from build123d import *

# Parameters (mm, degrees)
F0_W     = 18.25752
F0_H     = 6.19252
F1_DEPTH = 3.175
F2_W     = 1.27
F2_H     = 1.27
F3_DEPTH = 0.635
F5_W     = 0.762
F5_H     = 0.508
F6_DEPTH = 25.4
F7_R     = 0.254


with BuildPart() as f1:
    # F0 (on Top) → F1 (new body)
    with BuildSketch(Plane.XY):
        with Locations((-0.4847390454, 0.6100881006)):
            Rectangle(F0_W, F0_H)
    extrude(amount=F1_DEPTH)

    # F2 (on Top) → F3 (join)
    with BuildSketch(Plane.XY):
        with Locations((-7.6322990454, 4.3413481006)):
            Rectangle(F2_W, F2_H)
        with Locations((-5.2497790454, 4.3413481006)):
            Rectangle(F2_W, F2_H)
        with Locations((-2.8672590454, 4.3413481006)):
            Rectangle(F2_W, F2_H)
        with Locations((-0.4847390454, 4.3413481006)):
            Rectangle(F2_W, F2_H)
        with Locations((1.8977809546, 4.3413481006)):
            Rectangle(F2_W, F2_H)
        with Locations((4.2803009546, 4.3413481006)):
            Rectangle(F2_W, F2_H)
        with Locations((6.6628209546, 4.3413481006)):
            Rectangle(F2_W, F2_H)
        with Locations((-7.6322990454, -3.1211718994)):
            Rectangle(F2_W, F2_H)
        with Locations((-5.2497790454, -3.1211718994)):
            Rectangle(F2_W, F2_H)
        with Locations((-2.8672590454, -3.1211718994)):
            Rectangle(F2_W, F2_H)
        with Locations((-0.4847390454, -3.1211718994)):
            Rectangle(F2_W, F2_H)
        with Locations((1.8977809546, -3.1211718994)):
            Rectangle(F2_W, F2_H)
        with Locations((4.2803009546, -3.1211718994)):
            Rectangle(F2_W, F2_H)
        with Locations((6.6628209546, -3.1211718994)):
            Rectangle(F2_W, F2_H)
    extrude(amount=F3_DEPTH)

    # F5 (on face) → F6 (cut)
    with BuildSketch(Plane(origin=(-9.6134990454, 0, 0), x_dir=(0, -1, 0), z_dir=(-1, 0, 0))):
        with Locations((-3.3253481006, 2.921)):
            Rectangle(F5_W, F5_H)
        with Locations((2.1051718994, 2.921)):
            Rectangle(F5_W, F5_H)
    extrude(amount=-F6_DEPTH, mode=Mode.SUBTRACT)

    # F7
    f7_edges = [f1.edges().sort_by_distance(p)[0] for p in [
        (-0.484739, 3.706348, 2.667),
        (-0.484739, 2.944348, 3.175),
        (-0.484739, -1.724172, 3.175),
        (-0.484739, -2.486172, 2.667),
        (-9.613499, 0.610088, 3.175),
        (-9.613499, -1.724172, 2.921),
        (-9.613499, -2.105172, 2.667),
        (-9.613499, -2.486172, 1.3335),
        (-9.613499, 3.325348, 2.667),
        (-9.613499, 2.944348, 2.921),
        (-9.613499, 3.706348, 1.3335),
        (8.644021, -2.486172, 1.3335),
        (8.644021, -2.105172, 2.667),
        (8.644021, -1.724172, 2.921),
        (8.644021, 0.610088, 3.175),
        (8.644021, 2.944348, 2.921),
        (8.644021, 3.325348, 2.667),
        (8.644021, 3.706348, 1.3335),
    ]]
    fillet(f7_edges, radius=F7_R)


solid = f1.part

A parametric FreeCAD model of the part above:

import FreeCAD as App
import Part
import Sketcher
from FreeCAD import Vector
Q = App.Units.Quantity


def edges_at(feature, points):
    """Names of the edges that pass closest to the given points."""
    edges = feature.Shape.Edges
    near = lambda p: min(range(len(edges)), key=lambda i: edges[i].distToShape(Part.Vertex(*p))[0])
    return sorted({f"Edge{near(p) + 1}" for p in points})

doc = App.newDocument("Part")
body = doc.addObject("PartDesign::Body", "Body")

sketch1 = body.newObject("Sketcher::SketchObject", "Sketch")
sketch1.AttachmentSupport = (doc.getObject("XY_Plane"), [""])
sketch1.MapMode = "FlatFace"
sketch1.addGeometry(Part.LineSegment(Vector(-10, 4, 0), Vector(-10, -2, 0)), False)
sketch1.addGeometry(Part.LineSegment(Vector(-10, -2, 0), Vector(9, -2, 0)), False)
sketch1.addGeometry(Part.LineSegment(Vector(9, -2, 0), Vector(9, 4, 0)), False)
sketch1.addGeometry(Part.LineSegment(Vector(9, 4, 0), Vector(-10, 4, 0)), False)
sketch1.addConstraint(Sketcher.Constraint("Coincident", 0, 2, 1, 1))
sketch1.addConstraint(Sketcher.Constraint("Coincident", 1, 2, 2, 1))
sketch1.addConstraint(Sketcher.Constraint("Coincident", 2, 2, 3, 1))
sketch1.addConstraint(Sketcher.Constraint("Coincident", 3, 2, 0, 1))
sketch1.addConstraint(Sketcher.Constraint("Vertical", 0))
sketch1.addConstraint(Sketcher.Constraint("Horizontal", 1))
sketch1.addConstraint(Sketcher.Constraint("Vertical", 2))
sketch1.addConstraint(Sketcher.Constraint("Horizontal", 3))
sketch1.addConstraint(Sketcher.Constraint("DistanceX", 1, 1, 1, 2, Q("0.7188 in")))
sketch1.addConstraint(Sketcher.Constraint("DistanceY", 0, 2, 0, 1, Q("0.2438 in")))
sketch1.addConstraint(Sketcher.Constraint("DistanceX", 0, 2, -1, 1, 9.613499))
sketch1.addConstraint(Sketcher.Constraint("DistanceY", 0, 2, -1, 1, 2.486172))
pad1 = body.newObject("PartDesign::Pad", "Pad")
pad1.Profile = sketch1
pad1.Length = Q("0.125 in")

sketch2 = body.newObject("Sketcher::SketchObject", "Sketch001")
sketch2.AttachmentSupport = (doc.getObject("XY_Plane"), [""])
sketch2.MapMode = "FlatFace"
sketch2.addGeometry(Part.LineSegment(Vector(-8.3, 5, 0), Vector(-8.3, 3.7, 0)), False)
sketch2.addGeometry(Part.LineSegment(Vector(-8.3, 3.7, 0), Vector(-7, 3.7, 0)), False)
sketch2.addGeometry(Part.LineSegment(Vector(-7, 3.7, 0), Vector(-7, 5, 0)), False)
sketch2.addGeometry(Part.LineSegment(Vector(-7, 5, 0), Vector(-8.3, 5, 0)), False)
sketch2.addGeometry(Part.LineSegment(Vector(-5.9, 5, 0), Vector(-5.9, 3.7, 0)), False)
sketch2.addGeometry(Part.LineSegment(Vector(-5.9, 3.7, 0), Vector(-4.6, 3.7, 0)), False)
sketch2.addGeometry(Part.LineSegment(Vector(-4.6, 3.7, 0), Vector(-4.6, 5, 0)), False)
sketch2.addGeometry(Part.LineSegment(Vector(-4.6, 5, 0), Vector(-5.9, 5, 0)), False)
sketch2.addGeometry(Part.LineSegment(Vector(-3.5, 5, 0), Vector(-3.5, 3.7, 0)), False)
sketch2.addGeometry(Part.LineSegment(Vector(-3.5, 3.7, 0), Vector(-2.2, 3.7, 0)), False)
sketch2.addGeometry(Part.LineSegment(Vector(-2.2, 3.7, 0), Vector(-2.2, 5, 0)), False)
sketch2.addGeometry(Part.LineSegment(Vector(-2.2, 5, 0), Vector(-3.5, 5, 0)), False)
sketch2.addGeometry(Part.LineSegment(Vector(-1.1, 5, 0), Vector(-1.1, 3.7, 0)), False)
sketch2.addGeometry(Part.LineSegment(Vector(-1.1, 3.7, 0), Vector(0.2, 3.7, 0)), False)
sketch2.addGeometry(Part.LineSegment(Vector(0.2, 3.7, 0), Vector(0.2, 5, 0)), False)
sketch2.addGeometry(Part.LineSegment(Vector(0.2, 5, 0), Vector(-1.1, 5, 0)), False)
sketch2.addGeometry(Part.LineSegment(Vector(1.3, 5, 0), Vector(1.3, 3.7, 0)), False)
sketch2.addGeometry(Part.LineSegment(Vector(1.3, 3.7, 0), Vector(2.5, 3.7, 0)), False)
sketch2.addGeometry(Part.LineSegment(Vector(2.5, 3.7, 0), Vector(2.5, 5, 0)), False)
sketch2.addGeometry(Part.LineSegment(Vector(2.5, 5, 0), Vector(1.3, 5, 0)), False)
sketch2.addGeometry(Part.LineSegment(Vector(3.6, 5, 0), Vector(3.6, 3.7, 0)), False)
sketch2.addGeometry(Part.LineSegment(Vector(3.6, 3.7, 0), Vector(4.9, 3.7, 0)), False)
sketch2.addGeometry(Part.LineSegment(Vector(4.9, 3.7, 0), Vector(4.9, 5, 0)), False)
sketch2.addGeometry(Part.LineSegment(Vector(4.9, 5, 0), Vector(3.6, 5, 0)), False)
sketch2.addGeometry(Part.LineSegment(Vector(6, 5, 0), Vector(6, 3.7, 0)), False)
sketch2.addGeometry(Part.LineSegment(Vector(6, 3.7, 0), Vector(7.3, 3.7, 0)), False)
sketch2.addGeometry(Part.LineSegment(Vector(7.3, 3.7, 0), Vector(7.3, 5, 0)), False)
sketch2.addGeometry(Part.LineSegment(Vector(7.3, 5, 0), Vector(6, 5, 0)), False)
sketch2.addGeometry(Part.LineSegment(Vector(-8.3, -2.5, 0), Vector(-8.3, -3.8, 0)), False)
sketch2.addGeometry(Part.LineSegment(Vector(-8.3, -3.8, 0), Vector(-7, -3.8, 0)), False)
sketch2.addGeometry(Part.LineSegment(Vector(-7, -3.8, 0), Vector(-7, -2.5, 0)), False)
sketch2.addGeometry(Part.LineSegment(Vector(-7, -2.5, 0), Vector(-8.3, -2.5, 0)), False)
sketch2.addGeometry(Part.LineSegment(Vector(-5.9, -2.5, 0), Vector(-5.9, -3.8, 0)), False)
sketch2.addGeometry(Part.LineSegment(Vector(-5.9, -3.8, 0), Vector(-4.6, -3.8, 0)), False)
sketch2.addGeometry(Part.LineSegment(Vector(-4.6, -3.8, 0), Vector(-4.6, -2.5, 0)), False)
sketch2.addGeometry(Part.LineSegment(Vector(-4.6, -2.5, 0), Vector(-5.9, -2.5, 0)), False)
sketch2.addGeometry(Part.LineSegment(Vector(-3.5, -2.5, 0), Vector(-3.5, -3.8, 0)), False)
sketch2.addGeometry(Part.LineSegment(Vector(-3.5, -3.8, 0), Vector(-2.2, -3.8, 0)), False)
sketch2.addGeometry(Part.LineSegment(Vector(-2.2, -3.8, 0), Vector(-2.2, -2.5, 0)), False)
sketch2.addGeometry(Part.LineSegment(Vector(-2.2, -2.5, 0), Vector(-3.5, -2.5, 0)), False)
sketch2.addGeometry(Part.LineSegment(Vector(-1.1, -2.5, 0), Vector(-1.1, -3.8, 0)), False)
sketch2.addGeometry(Part.LineSegment(Vector(-1.1, -3.8, 0), Vector(0.2, -3.8, 0)), False)
sketch2.addGeometry(Part.LineSegment(Vector(0.2, -3.8, 0), Vector(0.2, -2.5, 0)), False)
sketch2.addGeometry(Part.LineSegment(Vector(0.2, -2.5, 0), Vector(-1.1, -2.5, 0)), False)
sketch2.addGeometry(Part.LineSegment(Vector(1.3, -2.5, 0), Vector(1.3, -3.8, 0)), False)
sketch2.addGeometry(Part.LineSegment(Vector(1.3, -3.8, 0), Vector(2.5, -3.8, 0)), False)
sketch2.addGeometry(Part.LineSegment(Vector(2.5, -3.8, 0), Vector(2.5, -2.5, 0)), False)
sketch2.addGeometry(Part.LineSegment(Vector(2.5, -2.5, 0), Vector(1.3, -2.5, 0)), False)
sketch2.addGeometry(Part.LineSegment(Vector(3.6, -2.5, 0), Vector(3.6, -3.8, 0)), False)
sketch2.addGeometry(Part.LineSegment(Vector(3.6, -3.8, 0), Vector(4.9, -3.8, 0)), False)
sketch2.addGeometry(Part.LineSegment(Vector(4.9, -3.8, 0), Vector(4.9, -2.5, 0)), False)
sketch2.addGeometry(Part.LineSegment(Vector(4.9, -2.5, 0), Vector(3.6, -2.5, 0)), False)
sketch2.addGeometry(Part.LineSegment(Vector(6, -2.5, 0), Vector(6, -3.8, 0)), False)
sketch2.addGeometry(Part.LineSegment(Vector(6, -3.8, 0), Vector(7.3, -3.8, 0)), False)
sketch2.addGeometry(Part.LineSegment(Vector(7.3, -3.8, 0), Vector(7.3, -2.5, 0)), False)
sketch2.addGeometry(Part.LineSegment(Vector(7.3, -2.5, 0), Vector(6, -2.5, 0)), False)
sketch2.addConstraint(Sketcher.Constraint("Coincident", 0, 2, 1, 1))
sketch2.addConstraint(Sketcher.Constraint("Coincident", 1, 2, 2, 1))
sketch2.addConstraint(Sketcher.Constraint("Coincident", 2, 2, 3, 1))
sketch2.addConstraint(Sketcher.Constraint("Coincident", 3, 2, 0, 1))
sketch2.addConstraint(Sketcher.Constraint("Coincident", 4, 2, 5, 1))
sketch2.addConstraint(Sketcher.Constraint("Coincident", 5, 2, 6, 1))
sketch2.addConstraint(Sketcher.Constraint("Coincident", 6, 2, 7, 1))
sketch2.addConstraint(Sketcher.Constraint("Coincident", 7, 2, 4, 1))
sketch2.addConstraint(Sketcher.Constraint("Coincident", 8, 2, 9, 1))
sketch2.addConstraint(Sketcher.Constraint("Coincident", 9, 2, 10, 1))
sketch2.addConstraint(Sketcher.Constraint("Coincident", 10, 2, 11, 1))
sketch2.addConstraint(Sketcher.Constraint("Coincident", 11, 2, 8, 1))
sketch2.addConstraint(Sketcher.Constraint("Coincident", 12, 2, 13, 1))
sketch2.addConstraint(Sketcher.Constraint("Coincident", 13, 2, 14, 1))
sketch2.addConstraint(Sketcher.Constraint("Coincident", 14, 2, 15, 1))
sketch2.addConstraint(Sketcher.Constraint("Coincident", 15, 2, 12, 1))
sketch2.addConstraint(Sketcher.Constraint("Coincident", 16, 2, 17, 1))
sketch2.addConstraint(Sketcher.Constraint("Coincident", 17, 2, 18, 1))
sketch2.addConstraint(Sketcher.Constraint("Coincident", 18, 2, 19, 1))
sketch2.addConstraint(Sketcher.Constraint("Coincident", 19, 2, 16, 1))
sketch2.addConstraint(Sketcher.Constraint("Coincident", 20, 2, 21, 1))
sketch2.addConstraint(Sketcher.Constraint("Coincident", 21, 2, 22, 1))
sketch2.addConstraint(Sketcher.Constraint("Coincident", 22, 2, 23, 1))
sketch2.addConstraint(Sketcher.Constraint("Coincident", 23, 2, 20, 1))
sketch2.addConstraint(Sketcher.Constraint("Coincident", 24, 2, 25, 1))
sketch2.addConstraint(Sketcher.Constraint("Coincident", 25, 2, 26, 1))
sketch2.addConstraint(Sketcher.Constraint("Coincident", 26, 2, 27, 1))
sketch2.addConstraint(Sketcher.Constraint("Coincident", 27, 2, 24, 1))
sketch2.addConstraint(Sketcher.Constraint("Coincident", 28, 2, 29, 1))
sketch2.addConstraint(Sketcher.Constraint("Coincident", 29, 2, 30, 1))
sketch2.addConstraint(Sketcher.Constraint("Coincident", 30, 2, 31, 1))
sketch2.addConstraint(Sketcher.Constraint("Coincident", 31, 2, 28, 1))
sketch2.addConstraint(Sketcher.Constraint("Coincident", 32, 2, 33, 1))
sketch2.addConstraint(Sketcher.Constraint("Coincident", 33, 2, 34, 1))
sketch2.addConstraint(Sketcher.Constraint("Coincident", 34, 2, 35, 1))
sketch2.addConstraint(Sketcher.Constraint("Coincident", 35, 2, 32, 1))
sketch2.addConstraint(Sketcher.Constraint("Coincident", 36, 2, 37, 1))
sketch2.addConstraint(Sketcher.Constraint("Coincident", 37, 2, 38, 1))
sketch2.addConstraint(Sketcher.Constraint("Coincident", 38, 2, 39, 1))
sketch2.addConstraint(Sketcher.Constraint("Coincident", 39, 2, 36, 1))
sketch2.addConstraint(Sketcher.Constraint("Coincident", 40, 2, 41, 1))
sketch2.addConstraint(Sketcher.Constraint("Coincident", 41, 2, 42, 1))
sketch2.addConstraint(Sketcher.Constraint("Coincident", 42, 2, 43, 1))
sketch2.addConstraint(Sketcher.Constraint("Coincident", 43, 2, 40, 1))
sketch2.addConstraint(Sketcher.Constraint("Coincident", 44, 2, 45, 1))
sketch2.addConstraint(Sketcher.Constraint("Coincident", 45, 2, 46, 1))
sketch2.addConstraint(Sketcher.Constraint("Coincident", 46, 2, 47, 1))
sketch2.addConstraint(Sketcher.Constraint("Coincident", 47, 2, 44, 1))
sketch2.addConstraint(Sketcher.Constraint("Coincident", 48, 2, 49, 1))
sketch2.addConstraint(Sketcher.Constraint("Coincident", 49, 2, 50, 1))
sketch2.addConstraint(Sketcher.Constraint("Coincident", 50, 2, 51, 1))
sketch2.addConstraint(Sketcher.Constraint("Coincident", 51, 2, 48, 1))
sketch2.addConstraint(Sketcher.Constraint("Coincident", 52, 2, 53, 1))
sketch2.addConstraint(Sketcher.Constraint("Coincident", 53, 2, 54, 1))
sketch2.addConstraint(Sketcher.Constraint("Coincident", 54, 2, 55, 1))
sketch2.addConstraint(Sketcher.Constraint("Coincident", 55, 2, 52, 1))
sketch2.addConstraint(Sketcher.Constraint("Vertical", 0))
sketch2.addConstraint(Sketcher.Constraint("Horizontal", 1))
sketch2.addConstraint(Sketcher.Constraint("Vertical", 2))
sketch2.addConstraint(Sketcher.Constraint("Horizontal", 3))
sketch2.addConstraint(Sketcher.Constraint("Vertical", 4))
sketch2.addConstraint(Sketcher.Constraint("Horizontal", 5))
sketch2.addConstraint(Sketcher.Constraint("Vertical", 6))
sketch2.addConstraint(Sketcher.Constraint("Horizontal", 7))
sketch2.addConstraint(Sketcher.Constraint("Vertical", 8))
sketch2.addConstraint(Sketcher.Constraint("Horizontal", 9))
sketch2.addConstraint(Sketcher.Constraint("Vertical", 10))
sketch2.addConstraint(Sketcher.Constraint("Horizontal", 11))
sketch2.addConstraint(Sketcher.Constraint("Vertical", 12))
sketch2.addConstraint(Sketcher.Constraint("Horizontal", 13))
sketch2.addConstraint(Sketcher.Constraint("Vertical", 14))
sketch2.addConstraint(Sketcher.Constraint("Horizontal", 15))
sketch2.addConstraint(Sketcher.Constraint("Vertical", 16))
sketch2.addConstraint(Sketcher.Constraint("Horizontal", 17))
sketch2.addConstraint(Sketcher.Constraint("Vertical", 18))
sketch2.addConstraint(Sketcher.Constraint("Horizontal", 19))
sketch2.addConstraint(Sketcher.Constraint("Vertical", 20))
sketch2.addConstraint(Sketcher.Constraint("Horizontal", 21))
sketch2.addConstraint(Sketcher.Constraint("Vertical", 22))
sketch2.addConstraint(Sketcher.Constraint("Horizontal", 23))
sketch2.addConstraint(Sketcher.Constraint("Vertical", 24))
sketch2.addConstraint(Sketcher.Constraint("Horizontal", 25))
sketch2.addConstraint(Sketcher.Constraint("Vertical", 26))
sketch2.addConstraint(Sketcher.Constraint("Horizontal", 27))
sketch2.addConstraint(Sketcher.Constraint("Vertical", 28))
sketch2.addConstraint(Sketcher.Constraint("Horizontal", 29))
sketch2.addConstraint(Sketcher.Constraint("Vertical", 30))
sketch2.addConstraint(Sketcher.Constraint("Horizontal", 31))
sketch2.addConstraint(Sketcher.Constraint("Vertical", 32))
sketch2.addConstraint(Sketcher.Constraint("Horizontal", 33))
sketch2.addConstraint(Sketcher.Constraint("Vertical", 34))
sketch2.addConstraint(Sketcher.Constraint("Horizontal", 35))
sketch2.addConstraint(Sketcher.Constraint("Vertical", 36))
sketch2.addConstraint(Sketcher.Constraint("Horizontal", 37))
sketch2.addConstraint(Sketcher.Constraint("Vertical", 38))
sketch2.addConstraint(Sketcher.Constraint("Horizontal", 39))
sketch2.addConstraint(Sketcher.Constraint("Vertical", 40))
sketch2.addConstraint(Sketcher.Constraint("Horizontal", 41))
sketch2.addConstraint(Sketcher.Constraint("Vertical", 42))
sketch2.addConstraint(Sketcher.Constraint("Horizontal", 43))
sketch2.addConstraint(Sketcher.Constraint("Vertical", 44))
sketch2.addConstraint(Sketcher.Constraint("Horizontal", 45))
sketch2.addConstraint(Sketcher.Constraint("Vertical", 46))
sketch2.addConstraint(Sketcher.Constraint("Horizontal", 47))
sketch2.addConstraint(Sketcher.Constraint("Vertical", 48))
sketch2.addConstraint(Sketcher.Constraint("Horizontal", 49))
sketch2.addConstraint(Sketcher.Constraint("Vertical", 50))
sketch2.addConstraint(Sketcher.Constraint("Horizontal", 51))
sketch2.addConstraint(Sketcher.Constraint("Vertical", 52))
sketch2.addConstraint(Sketcher.Constraint("Horizontal", 53))
sketch2.addConstraint(Sketcher.Constraint("Vertical", 54))
sketch2.addConstraint(Sketcher.Constraint("Horizontal", 55))
sketch2.addConstraint(Sketcher.Constraint("Horizontal", 1, 2, 4, 2))
sketch2.addConstraint(Sketcher.Constraint("Horizontal", 3, 2, 6, 2))
sketch2.addConstraint(Sketcher.Constraint("Horizontal", 5, 2, 8, 2))
sketch2.addConstraint(Sketcher.Constraint("Horizontal", 7, 2, 10, 2))
sketch2.addConstraint(Sketcher.Constraint("Horizontal", 9, 2, 12, 2))
sketch2.addConstraint(Sketcher.Constraint("Horizontal", 11, 2, 14, 2))
sketch2.addConstraint(Sketcher.Constraint("Horizontal", 13, 2, 16, 2))
sketch2.addConstraint(Sketcher.Constraint("Horizontal", 15, 2, 18, 2))
sketch2.addConstraint(Sketcher.Constraint("Horizontal", 17, 2, 20, 2))
sketch2.addConstraint(Sketcher.Constraint("Horizontal", 19, 2, 22, 2))
sketch2.addConstraint(Sketcher.Constraint("Horizontal", 21, 2, 24, 2))
sketch2.addConstraint(Sketcher.Constraint("Horizontal", 23, 2, 26, 2))
sketch2.addConstraint(Sketcher.Constraint("Horizontal", 29, 2, 32, 2))
sketch2.addConstraint(Sketcher.Constraint("Horizontal", 31, 2, 34, 2))
sketch2.addConstraint(Sketcher.Constraint("Horizontal", 33, 2, 36, 2))
sketch2.addConstraint(Sketcher.Constraint("Horizontal", 35, 2, 38, 2))
sketch2.addConstraint(Sketcher.Constraint("Horizontal", 37, 2, 40, 2))
sketch2.addConstraint(Sketcher.Constraint("Horizontal", 39, 2, 42, 2))
sketch2.addConstraint(Sketcher.Constraint("Horizontal", 41, 2, 44, 2))
sketch2.addConstraint(Sketcher.Constraint("Horizontal", 43, 2, 46, 2))
sketch2.addConstraint(Sketcher.Constraint("Horizontal", 45, 2, 48, 2))
sketch2.addConstraint(Sketcher.Constraint("Horizontal", 47, 2, 50, 2))
sketch2.addConstraint(Sketcher.Constraint("Horizontal", 49, 2, 52, 2))
sketch2.addConstraint(Sketcher.Constraint("Horizontal", 51, 2, 54, 2))
sketch2.addConstraint(Sketcher.Constraint("Vertical", 3, 2, 28, 2))
sketch2.addConstraint(Sketcher.Constraint("Vertical", 2, 2, 29, 2))
sketch2.addConstraint(Sketcher.Constraint("Vertical", 7, 2, 32, 2))
sketch2.addConstraint(Sketcher.Constraint("Vertical", 6, 2, 33, 2))
sketch2.addConstraint(Sketcher.Constraint("Vertical", 11, 2, 36, 2))
sketch2.addConstraint(Sketcher.Constraint("Vertical", 10, 2, 37, 2))
sketch2.addConstraint(Sketcher.Constraint("Vertical", 15, 2, 40, 2))
sketch2.addConstraint(Sketcher.Constraint("Vertical", 14, 2, 41, 2))
sketch2.addConstraint(Sketcher.Constraint("Vertical", 19, 2, 44, 2))
sketch2.addConstraint(Sketcher.Constraint("Vertical", 18, 2, 45, 2))
sketch2.addConstraint(Sketcher.Constraint("Vertical", 23, 2, 48, 2))
sketch2.addConstraint(Sketcher.Constraint("Vertical", 22, 2, 49, 2))
sketch2.addConstraint(Sketcher.Constraint("Vertical", 27, 2, 52, 2))
sketch2.addConstraint(Sketcher.Constraint("Vertical", 26, 2, 53, 2))
sketch2.addConstraint(Sketcher.Constraint("Equal", 3, 5))
sketch2.addConstraint(Sketcher.Constraint("Equal", 7, 9))
sketch2.addConstraint(Sketcher.Constraint("Equal", 11, 13))
sketch2.addConstraint(Sketcher.Constraint("Equal", 15, 17))
sketch2.addConstraint(Sketcher.Constraint("Equal", 19, 21))
sketch2.addConstraint(Sketcher.Constraint("Equal", 23, 25))
sketch2.addConstraint(Sketcher.Constraint("Equal", 55, 0))
sketch2.addConstraint(Sketcher.Constraint("Equal", 26, 28))
sketch2.addConstraint(Sketcher.Constraint("DistanceX", 1, 1, 1, 2, Q("0.05 in")))
sketch2.addConstraint(Sketcher.Constraint("DistanceX", 1, 2, 4, 2, Q("0.0438 in")))
sketch2.addConstraint(Sketcher.Constraint("DistanceX", 5, 2, 8, 2, Q("0.0438 in")))
sketch2.addConstraint(Sketcher.Constraint("DistanceX", 9, 2, 12, 2, Q("0.0438 in")))
sketch2.addConstraint(Sketcher.Constraint("DistanceX", 13, 2, 16, 2, Q("0.0438 in")))
sketch2.addConstraint(Sketcher.Constraint("DistanceX", 17, 2, 20, 2, Q("0.0438 in")))
sketch2.addConstraint(Sketcher.Constraint("DistanceX", 21, 2, 24, 2, Q("0.0438 in")))
sketch2.addConstraint(Sketcher.Constraint("DistanceY", 28, 2, 0, 2, Q("0.2938 in")))
sketch2.addConstraint(Sketcher.Constraint("DistanceX", 0, 2, -1, 1, 8.267299))
sketch2.addConstraint(Sketcher.Constraint("DistanceY", -1, 1, 0, 2, 3.706348))
pad2 = body.newObject("PartDesign::Pad", "Pad001")
pad2.Profile = sketch2
pad2.Length = Q("0.025 in")

sketch3 = body.newObject("Sketcher::SketchObject", "Sketch002")
sketch3.AttachmentSupport = (doc.getObject("YZ_Plane"), [""])
sketch3.MapMode = "FlatFace"
sketch3.AttachmentOffset = App.Placement(Vector(0, 0, -9.613499), App.Rotation())
sketch3.addGeometry(Part.LineSegment(Vector(3.7, 3.2, 0), Vector(3.7, 2.7, 0)), False)
sketch3.addGeometry(Part.LineSegment(Vector(3.7, 2.7, 0), Vector(2.9, 2.7, 0)), False)
sketch3.addGeometry(Part.LineSegment(Vector(2.9, 2.7, 0), Vector(2.9, 3.2, 0)), False)
sketch3.addGeometry(Part.LineSegment(Vector(2.9, 3.2, 0), Vector(3.7, 3.2, 0)), False)
sketch3.addGeometry(Part.LineSegment(Vector(-1.7, 3.2, 0), Vector(-1.7, 2.7, 0)), False)
sketch3.addGeometry(Part.LineSegment(Vector(-1.7, 2.7, 0), Vector(-2.5, 2.7, 0)), False)
sketch3.addGeometry(Part.LineSegment(Vector(-2.5, 2.7, 0), Vector(-2.5, 3.2, 0)), False)
sketch3.addGeometry(Part.LineSegment(Vector(-2.5, 3.2, 0), Vector(-1.7, 3.2, 0)), False)
sketch3.addConstraint(Sketcher.Constraint("Coincident", 0, 2, 1, 1))
sketch3.addConstraint(Sketcher.Constraint("Coincident", 1, 2, 2, 1))
sketch3.addConstraint(Sketcher.Constraint("Coincident", 2, 2, 3, 1))
sketch3.addConstraint(Sketcher.Constraint("Coincident", 3, 2, 0, 1))
sketch3.addConstraint(Sketcher.Constraint("Coincident", 4, 2, 5, 1))
sketch3.addConstraint(Sketcher.Constraint("Coincident", 5, 2, 6, 1))
sketch3.addConstraint(Sketcher.Constraint("Coincident", 6, 2, 7, 1))
sketch3.addConstraint(Sketcher.Constraint("Coincident", 7, 2, 4, 1))
sketch3.addConstraint(Sketcher.Constraint("Vertical", 0))
sketch3.addConstraint(Sketcher.Constraint("Horizontal", 1))
sketch3.addConstraint(Sketcher.Constraint("Vertical", 2))
sketch3.addConstraint(Sketcher.Constraint("Horizontal", 3))
sketch3.addConstraint(Sketcher.Constraint("Vertical", 4))
sketch3.addConstraint(Sketcher.Constraint("Horizontal", 5))
sketch3.addConstraint(Sketcher.Constraint("Vertical", 6))
sketch3.addConstraint(Sketcher.Constraint("Horizontal", 7))
sketch3.addConstraint(Sketcher.Constraint("Horizontal", 1, 2, 4, 2))
sketch3.addConstraint(Sketcher.Constraint("Horizontal", 3, 2, 6, 2))
sketch3.addConstraint(Sketcher.Constraint("Equal", 3, 5))
sketch3.addConstraint(Sketcher.Constraint("DistanceX", 1, 2, 1, 1, Q("0.03 in")))
sketch3.addConstraint(Sketcher.Constraint("DistanceY", 0, 2, 0, 1, Q("0.02 in")))
sketch3.addConstraint(Sketcher.Constraint("DistanceY", -1, 1, 0, 2, Q("0.105 in")))
sketch3.addConstraint(Sketcher.Constraint("DistanceX", 4, 2, 1, 2, Q("0.1838 in")))
sketch3.addConstraint(Sketcher.Constraint("DistanceX", -1, 1, 0, 2, 3.706348))
pocket1 = body.newObject("PartDesign::Pocket", "Pocket")
pocket1.Profile = sketch3
pocket1.Length = Q("1 in")
pocket1.Reversed = True
doc.recompute()

fillet = body.newObject("PartDesign::Fillet", "Fillet")
fillet.Base = (pocket1, edges_at(pocket1, [
    (-0.485, 3.706, 2.667),
    (-0.485, 2.944, 3.175),
    (-0.485, -1.724, 3.175),
    (-0.485, -2.486, 2.667),
    (-9.613, 0.61, 3.175),
    (-9.613, -1.724, 2.921),
    (-9.613, -2.105, 2.667),
    (-9.613, -2.486, 1.333),
    (-9.613, 3.325, 2.667),
    (-9.613, 2.944, 2.921),
    (-9.613, 3.706, 1.333),
    (8.644, -2.486, 1.333),
    (8.644, -2.105, 2.667),
    (8.644, -1.724, 2.921),
    (8.644, 0.61, 3.175),
    (8.644, 2.944, 2.921),
    (8.644, 3.325, 2.667),
    (8.644, 3.706, 1.333),
]))
fillet.Radius = Q("0.01 in")

doc.recompute()
